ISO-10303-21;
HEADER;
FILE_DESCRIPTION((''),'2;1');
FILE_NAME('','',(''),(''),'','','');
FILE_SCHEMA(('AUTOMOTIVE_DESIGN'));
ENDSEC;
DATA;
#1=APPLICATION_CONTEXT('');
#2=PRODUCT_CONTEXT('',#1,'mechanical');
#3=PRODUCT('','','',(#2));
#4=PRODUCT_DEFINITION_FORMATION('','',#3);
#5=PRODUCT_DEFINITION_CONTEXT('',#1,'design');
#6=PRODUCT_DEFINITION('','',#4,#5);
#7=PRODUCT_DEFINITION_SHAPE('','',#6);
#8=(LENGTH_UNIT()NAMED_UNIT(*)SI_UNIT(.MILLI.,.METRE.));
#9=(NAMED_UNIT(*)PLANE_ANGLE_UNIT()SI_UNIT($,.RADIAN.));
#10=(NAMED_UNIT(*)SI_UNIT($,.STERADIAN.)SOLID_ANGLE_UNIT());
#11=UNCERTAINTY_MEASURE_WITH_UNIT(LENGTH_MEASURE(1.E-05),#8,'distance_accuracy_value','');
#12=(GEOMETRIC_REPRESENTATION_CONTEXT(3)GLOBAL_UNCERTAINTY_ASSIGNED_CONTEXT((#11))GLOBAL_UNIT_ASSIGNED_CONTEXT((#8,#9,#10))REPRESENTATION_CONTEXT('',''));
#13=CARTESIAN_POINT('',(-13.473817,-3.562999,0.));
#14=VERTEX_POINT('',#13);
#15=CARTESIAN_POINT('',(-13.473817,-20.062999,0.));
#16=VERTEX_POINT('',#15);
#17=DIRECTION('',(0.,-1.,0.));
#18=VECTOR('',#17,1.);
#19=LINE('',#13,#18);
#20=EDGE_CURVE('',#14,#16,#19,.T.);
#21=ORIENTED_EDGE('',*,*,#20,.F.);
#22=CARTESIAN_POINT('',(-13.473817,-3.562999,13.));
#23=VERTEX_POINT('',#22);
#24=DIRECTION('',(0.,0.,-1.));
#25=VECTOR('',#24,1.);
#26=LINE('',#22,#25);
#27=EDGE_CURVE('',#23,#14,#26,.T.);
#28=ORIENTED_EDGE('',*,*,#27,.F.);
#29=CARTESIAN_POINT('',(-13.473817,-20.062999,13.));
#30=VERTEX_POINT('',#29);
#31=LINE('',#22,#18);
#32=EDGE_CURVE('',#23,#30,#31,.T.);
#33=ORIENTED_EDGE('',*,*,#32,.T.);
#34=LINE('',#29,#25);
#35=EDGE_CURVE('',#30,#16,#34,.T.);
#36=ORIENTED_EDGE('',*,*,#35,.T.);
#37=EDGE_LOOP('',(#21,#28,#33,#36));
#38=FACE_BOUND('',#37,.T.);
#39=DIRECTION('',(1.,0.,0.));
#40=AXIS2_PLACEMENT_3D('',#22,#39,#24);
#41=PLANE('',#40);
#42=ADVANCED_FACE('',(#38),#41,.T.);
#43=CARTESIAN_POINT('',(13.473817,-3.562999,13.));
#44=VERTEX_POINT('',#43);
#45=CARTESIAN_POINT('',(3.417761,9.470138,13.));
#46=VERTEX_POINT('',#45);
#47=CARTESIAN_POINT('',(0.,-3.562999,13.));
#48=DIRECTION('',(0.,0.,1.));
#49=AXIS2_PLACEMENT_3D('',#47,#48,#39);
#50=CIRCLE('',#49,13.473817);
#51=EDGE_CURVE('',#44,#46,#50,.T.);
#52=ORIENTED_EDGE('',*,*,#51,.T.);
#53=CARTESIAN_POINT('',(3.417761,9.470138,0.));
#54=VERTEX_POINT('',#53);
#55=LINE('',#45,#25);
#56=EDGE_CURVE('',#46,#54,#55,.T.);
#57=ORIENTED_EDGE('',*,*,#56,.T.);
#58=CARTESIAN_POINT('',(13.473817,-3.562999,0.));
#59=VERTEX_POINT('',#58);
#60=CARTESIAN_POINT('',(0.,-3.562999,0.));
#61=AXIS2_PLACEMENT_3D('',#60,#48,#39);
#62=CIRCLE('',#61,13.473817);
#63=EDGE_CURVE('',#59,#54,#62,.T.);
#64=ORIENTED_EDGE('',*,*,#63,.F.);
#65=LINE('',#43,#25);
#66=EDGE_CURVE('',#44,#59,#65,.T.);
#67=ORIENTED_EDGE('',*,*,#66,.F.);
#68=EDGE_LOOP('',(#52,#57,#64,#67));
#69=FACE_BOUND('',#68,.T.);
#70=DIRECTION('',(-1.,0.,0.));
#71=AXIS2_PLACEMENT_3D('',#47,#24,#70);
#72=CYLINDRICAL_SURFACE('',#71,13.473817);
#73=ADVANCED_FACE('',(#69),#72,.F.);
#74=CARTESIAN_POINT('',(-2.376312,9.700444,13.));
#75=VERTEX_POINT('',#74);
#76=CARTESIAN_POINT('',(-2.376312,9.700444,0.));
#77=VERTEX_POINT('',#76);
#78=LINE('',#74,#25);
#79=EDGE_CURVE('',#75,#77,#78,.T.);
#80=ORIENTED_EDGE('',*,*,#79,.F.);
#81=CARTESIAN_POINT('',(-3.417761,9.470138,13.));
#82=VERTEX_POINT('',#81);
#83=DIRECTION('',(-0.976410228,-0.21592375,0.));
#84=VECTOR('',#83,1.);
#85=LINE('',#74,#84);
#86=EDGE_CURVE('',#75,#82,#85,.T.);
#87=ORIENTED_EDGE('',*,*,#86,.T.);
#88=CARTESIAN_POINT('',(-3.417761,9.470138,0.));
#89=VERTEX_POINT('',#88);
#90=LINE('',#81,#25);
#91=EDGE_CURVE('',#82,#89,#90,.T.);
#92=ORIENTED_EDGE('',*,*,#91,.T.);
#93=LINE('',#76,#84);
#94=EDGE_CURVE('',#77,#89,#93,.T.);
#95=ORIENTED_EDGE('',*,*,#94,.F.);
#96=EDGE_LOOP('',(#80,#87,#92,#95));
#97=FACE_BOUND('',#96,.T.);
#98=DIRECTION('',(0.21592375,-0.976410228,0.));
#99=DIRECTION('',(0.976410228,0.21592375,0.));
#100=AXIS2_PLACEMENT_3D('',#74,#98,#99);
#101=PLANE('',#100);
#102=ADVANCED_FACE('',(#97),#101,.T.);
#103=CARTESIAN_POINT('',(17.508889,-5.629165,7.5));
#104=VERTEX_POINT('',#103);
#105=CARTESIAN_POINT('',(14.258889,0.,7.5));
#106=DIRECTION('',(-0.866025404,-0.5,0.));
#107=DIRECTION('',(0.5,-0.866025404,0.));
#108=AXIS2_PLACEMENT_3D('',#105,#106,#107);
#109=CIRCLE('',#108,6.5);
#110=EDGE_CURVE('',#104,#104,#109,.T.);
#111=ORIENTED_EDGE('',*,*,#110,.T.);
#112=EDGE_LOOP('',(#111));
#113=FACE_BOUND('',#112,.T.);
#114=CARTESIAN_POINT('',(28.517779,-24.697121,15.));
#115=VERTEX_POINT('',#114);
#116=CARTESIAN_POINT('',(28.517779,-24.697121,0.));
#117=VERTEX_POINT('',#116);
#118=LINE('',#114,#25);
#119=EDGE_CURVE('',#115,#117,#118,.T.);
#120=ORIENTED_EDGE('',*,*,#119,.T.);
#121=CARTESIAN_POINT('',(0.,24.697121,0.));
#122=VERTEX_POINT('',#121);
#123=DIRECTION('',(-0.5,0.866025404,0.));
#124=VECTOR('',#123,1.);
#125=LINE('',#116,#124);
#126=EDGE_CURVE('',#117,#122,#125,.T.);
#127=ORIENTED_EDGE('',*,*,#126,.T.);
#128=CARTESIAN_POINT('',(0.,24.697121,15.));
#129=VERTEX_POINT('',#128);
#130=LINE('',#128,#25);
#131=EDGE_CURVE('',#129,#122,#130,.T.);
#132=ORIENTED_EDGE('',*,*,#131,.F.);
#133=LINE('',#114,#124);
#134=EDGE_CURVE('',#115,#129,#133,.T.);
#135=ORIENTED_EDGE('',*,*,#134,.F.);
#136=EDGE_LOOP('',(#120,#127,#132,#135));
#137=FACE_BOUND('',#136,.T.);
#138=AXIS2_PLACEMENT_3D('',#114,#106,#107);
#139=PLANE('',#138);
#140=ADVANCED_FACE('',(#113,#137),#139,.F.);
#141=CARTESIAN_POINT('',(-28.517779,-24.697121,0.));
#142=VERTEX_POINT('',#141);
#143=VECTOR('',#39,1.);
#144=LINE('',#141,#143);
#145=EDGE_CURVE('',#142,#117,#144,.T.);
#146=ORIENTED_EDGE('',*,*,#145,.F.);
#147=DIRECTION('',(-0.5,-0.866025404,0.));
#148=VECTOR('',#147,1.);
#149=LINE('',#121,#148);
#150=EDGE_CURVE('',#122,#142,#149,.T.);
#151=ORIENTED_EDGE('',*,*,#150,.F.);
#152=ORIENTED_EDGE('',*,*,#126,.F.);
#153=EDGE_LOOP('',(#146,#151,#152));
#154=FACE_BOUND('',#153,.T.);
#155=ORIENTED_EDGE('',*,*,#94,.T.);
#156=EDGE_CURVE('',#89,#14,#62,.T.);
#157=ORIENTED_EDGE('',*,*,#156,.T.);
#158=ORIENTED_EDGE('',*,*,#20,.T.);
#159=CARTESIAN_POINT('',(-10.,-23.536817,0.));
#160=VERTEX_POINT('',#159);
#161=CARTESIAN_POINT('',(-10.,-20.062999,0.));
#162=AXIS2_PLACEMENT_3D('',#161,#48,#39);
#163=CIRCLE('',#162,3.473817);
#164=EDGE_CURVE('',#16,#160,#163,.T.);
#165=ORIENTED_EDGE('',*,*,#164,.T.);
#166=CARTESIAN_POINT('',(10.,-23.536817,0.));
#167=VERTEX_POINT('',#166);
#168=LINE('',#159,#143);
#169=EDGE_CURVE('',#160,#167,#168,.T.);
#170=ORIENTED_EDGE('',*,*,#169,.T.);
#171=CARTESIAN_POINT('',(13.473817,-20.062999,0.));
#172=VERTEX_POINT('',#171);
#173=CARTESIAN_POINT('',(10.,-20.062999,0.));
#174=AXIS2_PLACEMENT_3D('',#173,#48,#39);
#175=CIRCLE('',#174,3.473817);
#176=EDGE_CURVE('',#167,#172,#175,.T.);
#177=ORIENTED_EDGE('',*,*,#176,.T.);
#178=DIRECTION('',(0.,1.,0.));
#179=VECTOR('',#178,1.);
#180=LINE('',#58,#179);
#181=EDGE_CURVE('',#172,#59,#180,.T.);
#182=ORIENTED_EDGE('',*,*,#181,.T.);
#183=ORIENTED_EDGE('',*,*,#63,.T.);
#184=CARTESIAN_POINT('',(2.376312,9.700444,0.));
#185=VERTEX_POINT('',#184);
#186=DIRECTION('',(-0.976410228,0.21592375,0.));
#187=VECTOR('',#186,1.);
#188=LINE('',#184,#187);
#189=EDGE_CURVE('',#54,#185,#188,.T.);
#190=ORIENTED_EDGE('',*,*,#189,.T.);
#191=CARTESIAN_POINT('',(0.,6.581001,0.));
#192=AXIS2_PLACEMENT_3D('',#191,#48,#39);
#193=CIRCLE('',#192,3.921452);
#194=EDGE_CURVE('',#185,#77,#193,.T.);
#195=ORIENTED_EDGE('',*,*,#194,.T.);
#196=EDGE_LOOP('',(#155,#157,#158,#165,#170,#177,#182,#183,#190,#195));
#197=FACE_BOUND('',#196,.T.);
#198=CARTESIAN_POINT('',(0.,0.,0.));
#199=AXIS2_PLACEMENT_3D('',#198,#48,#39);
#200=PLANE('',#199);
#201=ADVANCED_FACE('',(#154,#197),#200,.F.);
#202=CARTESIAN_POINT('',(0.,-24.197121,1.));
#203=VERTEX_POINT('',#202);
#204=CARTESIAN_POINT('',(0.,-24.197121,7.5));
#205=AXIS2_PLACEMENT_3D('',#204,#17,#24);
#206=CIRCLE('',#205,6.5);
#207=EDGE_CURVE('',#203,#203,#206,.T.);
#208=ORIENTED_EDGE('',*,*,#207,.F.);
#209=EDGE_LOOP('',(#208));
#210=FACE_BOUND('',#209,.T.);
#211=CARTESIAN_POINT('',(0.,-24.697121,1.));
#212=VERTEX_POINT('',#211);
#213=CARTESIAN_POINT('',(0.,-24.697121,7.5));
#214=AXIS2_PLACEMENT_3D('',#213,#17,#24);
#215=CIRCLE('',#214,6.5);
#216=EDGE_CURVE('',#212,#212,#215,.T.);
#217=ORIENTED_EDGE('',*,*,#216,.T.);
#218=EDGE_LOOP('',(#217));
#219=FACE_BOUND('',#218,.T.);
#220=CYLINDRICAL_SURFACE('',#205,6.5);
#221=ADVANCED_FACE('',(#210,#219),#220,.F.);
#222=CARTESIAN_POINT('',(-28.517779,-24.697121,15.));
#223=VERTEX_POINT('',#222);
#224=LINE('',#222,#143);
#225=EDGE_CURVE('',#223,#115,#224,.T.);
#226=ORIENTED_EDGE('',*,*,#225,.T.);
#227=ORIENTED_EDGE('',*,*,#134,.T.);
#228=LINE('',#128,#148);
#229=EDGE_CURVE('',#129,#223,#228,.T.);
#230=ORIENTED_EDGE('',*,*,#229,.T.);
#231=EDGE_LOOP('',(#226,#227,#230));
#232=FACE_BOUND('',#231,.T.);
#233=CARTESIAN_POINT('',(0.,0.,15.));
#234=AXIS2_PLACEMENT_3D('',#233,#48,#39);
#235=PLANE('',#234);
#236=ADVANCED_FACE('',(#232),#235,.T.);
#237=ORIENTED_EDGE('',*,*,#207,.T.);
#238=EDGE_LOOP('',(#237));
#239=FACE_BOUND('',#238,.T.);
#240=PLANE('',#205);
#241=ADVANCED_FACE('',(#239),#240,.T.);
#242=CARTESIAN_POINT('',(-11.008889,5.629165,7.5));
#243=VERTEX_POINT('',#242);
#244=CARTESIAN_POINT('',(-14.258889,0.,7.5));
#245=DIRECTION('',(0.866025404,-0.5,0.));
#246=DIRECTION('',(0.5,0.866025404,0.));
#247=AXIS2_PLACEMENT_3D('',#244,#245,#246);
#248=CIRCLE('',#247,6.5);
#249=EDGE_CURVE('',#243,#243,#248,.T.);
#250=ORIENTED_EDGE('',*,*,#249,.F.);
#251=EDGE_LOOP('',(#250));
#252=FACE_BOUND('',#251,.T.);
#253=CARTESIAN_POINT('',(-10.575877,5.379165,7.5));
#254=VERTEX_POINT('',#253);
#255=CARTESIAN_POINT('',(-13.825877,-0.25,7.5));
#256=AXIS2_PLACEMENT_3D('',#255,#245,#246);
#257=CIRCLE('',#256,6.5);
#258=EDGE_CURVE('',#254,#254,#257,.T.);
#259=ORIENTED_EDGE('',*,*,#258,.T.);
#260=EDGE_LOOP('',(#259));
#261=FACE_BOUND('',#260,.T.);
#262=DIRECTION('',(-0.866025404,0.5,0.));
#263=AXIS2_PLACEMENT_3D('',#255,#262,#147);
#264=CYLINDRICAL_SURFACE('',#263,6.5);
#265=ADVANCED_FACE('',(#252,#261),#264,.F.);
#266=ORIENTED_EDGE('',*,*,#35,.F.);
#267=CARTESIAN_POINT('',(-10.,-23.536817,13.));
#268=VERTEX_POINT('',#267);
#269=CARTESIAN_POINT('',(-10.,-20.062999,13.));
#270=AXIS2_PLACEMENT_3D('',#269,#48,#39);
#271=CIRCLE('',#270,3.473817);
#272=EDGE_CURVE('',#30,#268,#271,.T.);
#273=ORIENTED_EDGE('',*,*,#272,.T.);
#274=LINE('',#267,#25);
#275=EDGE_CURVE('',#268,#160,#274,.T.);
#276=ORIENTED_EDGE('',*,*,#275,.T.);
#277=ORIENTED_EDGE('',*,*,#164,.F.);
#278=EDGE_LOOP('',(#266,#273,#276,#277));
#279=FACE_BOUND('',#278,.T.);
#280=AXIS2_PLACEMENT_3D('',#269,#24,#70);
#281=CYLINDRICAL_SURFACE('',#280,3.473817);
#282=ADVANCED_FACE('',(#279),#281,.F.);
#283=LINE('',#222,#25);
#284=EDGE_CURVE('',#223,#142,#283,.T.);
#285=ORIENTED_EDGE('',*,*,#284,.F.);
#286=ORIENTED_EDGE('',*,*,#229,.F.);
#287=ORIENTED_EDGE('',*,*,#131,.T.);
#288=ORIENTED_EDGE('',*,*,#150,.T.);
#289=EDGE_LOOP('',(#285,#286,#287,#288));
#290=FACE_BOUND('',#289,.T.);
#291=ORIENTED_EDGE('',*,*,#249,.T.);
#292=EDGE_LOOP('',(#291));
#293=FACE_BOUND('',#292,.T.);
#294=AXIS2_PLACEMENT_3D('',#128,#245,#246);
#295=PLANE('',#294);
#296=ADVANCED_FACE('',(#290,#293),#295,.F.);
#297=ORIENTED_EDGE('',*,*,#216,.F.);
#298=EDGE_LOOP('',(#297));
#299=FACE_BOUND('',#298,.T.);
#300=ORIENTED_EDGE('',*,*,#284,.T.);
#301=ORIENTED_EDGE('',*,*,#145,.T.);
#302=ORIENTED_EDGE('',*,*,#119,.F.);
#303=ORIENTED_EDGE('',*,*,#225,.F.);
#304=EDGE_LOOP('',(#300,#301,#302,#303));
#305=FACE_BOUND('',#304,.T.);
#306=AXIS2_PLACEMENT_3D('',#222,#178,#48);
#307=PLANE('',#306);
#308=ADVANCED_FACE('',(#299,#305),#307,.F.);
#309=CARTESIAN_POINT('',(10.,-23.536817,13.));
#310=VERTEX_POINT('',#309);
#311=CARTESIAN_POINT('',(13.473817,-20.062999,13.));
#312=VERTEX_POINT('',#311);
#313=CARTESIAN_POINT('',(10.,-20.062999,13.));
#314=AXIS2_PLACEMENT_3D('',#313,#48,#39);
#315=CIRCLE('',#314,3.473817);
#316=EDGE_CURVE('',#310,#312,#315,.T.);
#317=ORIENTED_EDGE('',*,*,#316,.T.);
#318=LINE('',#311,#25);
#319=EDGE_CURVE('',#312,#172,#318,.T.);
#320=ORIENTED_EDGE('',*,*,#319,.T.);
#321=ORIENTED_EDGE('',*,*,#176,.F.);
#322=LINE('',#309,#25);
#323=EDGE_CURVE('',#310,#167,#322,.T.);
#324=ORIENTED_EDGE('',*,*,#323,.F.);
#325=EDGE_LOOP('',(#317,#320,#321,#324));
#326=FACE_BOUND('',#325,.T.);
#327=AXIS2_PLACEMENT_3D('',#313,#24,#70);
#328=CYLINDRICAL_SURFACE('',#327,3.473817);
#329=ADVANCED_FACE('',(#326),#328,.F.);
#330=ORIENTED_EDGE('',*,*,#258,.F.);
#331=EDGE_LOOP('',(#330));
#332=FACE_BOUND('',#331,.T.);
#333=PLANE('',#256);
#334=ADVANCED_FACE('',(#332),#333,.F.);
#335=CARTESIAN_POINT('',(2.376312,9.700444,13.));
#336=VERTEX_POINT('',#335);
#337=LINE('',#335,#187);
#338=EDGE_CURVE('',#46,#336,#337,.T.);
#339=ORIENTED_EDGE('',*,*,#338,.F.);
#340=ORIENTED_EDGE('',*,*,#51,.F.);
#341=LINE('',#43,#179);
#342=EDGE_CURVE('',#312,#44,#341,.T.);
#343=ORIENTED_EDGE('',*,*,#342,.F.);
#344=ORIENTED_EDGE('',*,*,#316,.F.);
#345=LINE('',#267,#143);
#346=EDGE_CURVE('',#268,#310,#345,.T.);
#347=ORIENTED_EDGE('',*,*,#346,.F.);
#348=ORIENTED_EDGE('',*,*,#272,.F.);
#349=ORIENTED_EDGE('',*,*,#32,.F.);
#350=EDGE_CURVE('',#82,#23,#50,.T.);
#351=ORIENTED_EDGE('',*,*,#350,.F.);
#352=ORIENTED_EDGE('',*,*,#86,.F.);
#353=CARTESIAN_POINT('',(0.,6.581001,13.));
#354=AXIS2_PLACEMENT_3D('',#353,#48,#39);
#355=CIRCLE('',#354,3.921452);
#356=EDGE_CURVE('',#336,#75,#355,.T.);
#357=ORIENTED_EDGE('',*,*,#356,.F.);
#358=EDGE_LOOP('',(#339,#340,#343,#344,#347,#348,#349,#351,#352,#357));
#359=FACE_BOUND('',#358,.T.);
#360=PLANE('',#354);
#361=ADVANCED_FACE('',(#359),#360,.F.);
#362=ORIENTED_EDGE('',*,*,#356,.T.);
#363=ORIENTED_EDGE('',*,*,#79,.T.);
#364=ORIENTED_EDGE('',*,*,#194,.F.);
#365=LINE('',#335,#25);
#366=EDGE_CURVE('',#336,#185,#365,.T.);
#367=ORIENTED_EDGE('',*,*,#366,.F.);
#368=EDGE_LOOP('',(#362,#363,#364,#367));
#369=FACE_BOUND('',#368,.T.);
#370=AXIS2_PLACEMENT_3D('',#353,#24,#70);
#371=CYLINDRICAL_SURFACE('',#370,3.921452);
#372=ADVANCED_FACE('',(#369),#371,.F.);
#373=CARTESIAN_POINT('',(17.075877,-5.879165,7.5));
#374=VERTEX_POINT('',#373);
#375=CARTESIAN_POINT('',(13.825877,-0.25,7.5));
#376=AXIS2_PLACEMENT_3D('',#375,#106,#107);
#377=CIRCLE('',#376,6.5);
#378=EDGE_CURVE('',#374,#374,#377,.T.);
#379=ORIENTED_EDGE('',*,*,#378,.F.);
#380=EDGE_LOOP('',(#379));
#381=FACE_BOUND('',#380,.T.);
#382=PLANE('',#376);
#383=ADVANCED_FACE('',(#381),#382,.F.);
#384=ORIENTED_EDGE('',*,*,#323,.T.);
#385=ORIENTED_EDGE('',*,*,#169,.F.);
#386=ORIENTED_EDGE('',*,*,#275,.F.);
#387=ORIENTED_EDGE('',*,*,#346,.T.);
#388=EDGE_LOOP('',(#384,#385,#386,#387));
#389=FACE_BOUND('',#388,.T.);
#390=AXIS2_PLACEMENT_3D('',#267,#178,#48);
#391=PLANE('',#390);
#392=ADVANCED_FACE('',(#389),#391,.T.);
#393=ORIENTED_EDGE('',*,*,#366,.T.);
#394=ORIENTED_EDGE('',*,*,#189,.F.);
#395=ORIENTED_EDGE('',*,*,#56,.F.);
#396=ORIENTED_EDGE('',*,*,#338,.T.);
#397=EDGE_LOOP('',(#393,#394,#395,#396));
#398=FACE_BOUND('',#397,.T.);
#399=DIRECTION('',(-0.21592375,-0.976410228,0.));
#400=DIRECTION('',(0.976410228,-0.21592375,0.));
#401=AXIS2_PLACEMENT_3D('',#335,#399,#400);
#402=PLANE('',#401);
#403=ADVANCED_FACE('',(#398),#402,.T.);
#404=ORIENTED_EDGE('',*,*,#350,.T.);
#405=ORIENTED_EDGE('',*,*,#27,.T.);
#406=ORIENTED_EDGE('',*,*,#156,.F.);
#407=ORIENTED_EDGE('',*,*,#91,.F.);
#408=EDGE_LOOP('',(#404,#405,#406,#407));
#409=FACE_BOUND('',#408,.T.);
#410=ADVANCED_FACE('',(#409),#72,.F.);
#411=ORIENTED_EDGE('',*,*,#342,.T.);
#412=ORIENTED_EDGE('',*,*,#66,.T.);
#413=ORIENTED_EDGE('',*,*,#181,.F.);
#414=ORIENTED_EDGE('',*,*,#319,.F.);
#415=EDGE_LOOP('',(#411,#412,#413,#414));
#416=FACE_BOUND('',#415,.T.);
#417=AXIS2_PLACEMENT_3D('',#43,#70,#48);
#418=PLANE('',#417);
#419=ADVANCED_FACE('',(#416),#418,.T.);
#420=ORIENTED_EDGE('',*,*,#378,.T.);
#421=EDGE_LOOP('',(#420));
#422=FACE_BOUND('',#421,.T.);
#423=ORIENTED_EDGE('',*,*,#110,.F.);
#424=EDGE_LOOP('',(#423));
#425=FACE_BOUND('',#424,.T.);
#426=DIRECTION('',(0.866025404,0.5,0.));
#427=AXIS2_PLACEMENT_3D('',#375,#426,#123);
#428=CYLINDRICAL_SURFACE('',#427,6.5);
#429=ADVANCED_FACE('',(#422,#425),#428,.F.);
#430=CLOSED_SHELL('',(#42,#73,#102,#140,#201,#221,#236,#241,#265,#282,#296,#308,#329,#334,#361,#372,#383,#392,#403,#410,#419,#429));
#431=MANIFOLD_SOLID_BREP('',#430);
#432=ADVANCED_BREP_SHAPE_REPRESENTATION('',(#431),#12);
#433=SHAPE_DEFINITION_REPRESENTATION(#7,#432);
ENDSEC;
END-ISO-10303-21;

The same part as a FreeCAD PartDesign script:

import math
import FreeCAD as App
import Part
import Sketcher
from FreeCAD import Vector
Q = App.Units.Quantity


def add_polygon(sketch, points):
    """Adds a closed chain of lines whose ends are joined by coincident constraints."""
    first, n = sketch.GeometryCount, len(points)
    for a, b in zip(points, points[1:] + points[:1]):
        sketch.addGeometry(Part.LineSegment(App.Vector(*a, 0), App.Vector(*b, 0)), False)
    for i in range(n):
        sketch.addConstraint(Sketcher.Constraint("Coincident", first + i, 2, first + (i + 1) % n, 1))

doc = App.newDocument("Part")
body = doc.addObject("PartDesign::Body", "Body")

# Sketch on XY plane
sketch1 = body.newObject("Sketcher::SketchObject", "Sketch")
sketch1.AttachmentSupport = (doc.getObject("XY_Plane"), [""])
sketch1.MapMode = "FlatFace"
add_polygon(sketch1, [(0, 24.697121), (-28.517779, -24.697121), (28.517779, -24.697121)])  # lines 0-2
sketch1.addConstraint([
    Sketcher.Constraint("Horizontal", 1),
    Sketcher.Constraint("PointOnObject", 2, 2, -2),
    Sketcher.Constraint("Equal", 0, 2),
    Sketcher.Constraint("Angle", 0, Q("-120 deg")),
    Sketcher.Constraint("DistanceX", 1, 1, 1, 2, 57.035558),
    Sketcher.Constraint("DistanceY", 0, 2, -1, 1, 24.697121),
])
pad1 = body.newObject("PartDesign::Pad", "Pad")
pad1.Profile = sketch1
pad1.Length = 15

# Sketch on XY plane
sketch2 = body.newObject("Sketcher::SketchObject", "Sketch001")
sketch2.AttachmentSupport = (doc.getObject("XY_Plane"), [""])
sketch2.MapMode = "FlatFace"
sketch2.addGeometry([
    Part.LineSegment(Vector(-13.473817, -3.562999, 0), Vector(-13.473817, -20.062999, 0)),  # 0
    Part.ArcOfCircle(Part.Circle(Vector(-10, -20.062999, 0), Vector(0, 0, 1), 3.473817), math.radians(-180), math.radians(-90)),  # 1
    Part.LineSegment(Vector(-10, -23.536817, 0), Vector(10, -23.536817, 0)),  # 2
    Part.ArcOfCircle(Part.Circle(Vector(10, -20.062999, 0), Vector(0, 0, 1), 3.473817), math.radians(-90), math.radians(0)),  # 3
    Part.LineSegment(Vector(13.473817, -20.062999, 0), Vector(13.473817, -3.562999, 0)),  # 4
    Part.ArcOfCircle(Part.Circle(Vector(0, -3.562999, 0), Vector(0, 0, 1), 13.473817), math.radians(0), math.radians(75.305833)),  # 5
    Part.LineSegment(Vector(3.417761, 9.470138, 0), Vector(2.376312, 9.700444, 0)),  # 6
    Part.ArcOfCircle(Part.Circle(Vector(0, 6.581001, 0), Vector(0, 0, 1), 3.921452), math.radians(52.700775), math.radians(127.299225)),  # 7
    Part.LineSegment(Vector(-2.376312, 9.700444, 0), Vector(-3.417761, 9.470138, 0)),  # 8
    Part.ArcOfCircle(Part.Circle(Vector(0, -3.562999, 0), Vector(0, 0, 1), 13.473817), math.radians(104.694167), math.radians(180)),  # 9
], False)
sketch2.addConstraint([
    Sketcher.Constraint("Tangent", 0, 2, 1, 1),
    Sketcher.Constraint("Tangent", 1, 2, 2, 1),
    Sketcher.Constraint("Tangent", 2, 2, 3, 1),
    Sketcher.Constraint("Tangent", 3, 2, 4, 1),
    Sketcher.Constraint("Tangent", 4, 2, 5, 1),
    Sketcher.Constraint("Coincident", 5, 2, 6, 1),
    Sketcher.Constraint("Coincident", 6, 2, 7, 1),
    Sketcher.Constraint("Coincident", 7, 2, 8, 1),
    Sketcher.Constraint("Coincident", 8, 2, 9, 1),
    Sketcher.Constraint("Tangent", 9, 2, 0, 1),
    Sketcher.Constraint("Vertical", 0),
    Sketcher.Constraint("Horizontal", 2),
    Sketcher.Constraint("Vertical", 4),
    Sketcher.Constraint("Coincident", 9, 3, 5, 3),
    Sketcher.Constraint("Equal", 1, 3),
    Sketcher.Constraint("Equal", 5, 9),
    Sketcher.Constraint("Symmetric", 6, 2, 7, 2, -2),
    Sketcher.Constraint("Symmetric", 5, 2, 8, 2, -2),
    Sketcher.Constraint("DistanceX", 2, 1, 2, 2, 20.0),
    Sketcher.Constraint("DistanceY", 0, 2, 0, 1, 16.5),
    Sketcher.Constraint("DistanceY", 1, 3, -1, 1, 20.062999),
    Sketcher.Constraint("DistanceY", -1, 1, 7, 3, 6.581001),
    Sketcher.Constraint("Radius", 1, 3.473817),
    Sketcher.Constraint("Radius", 7, 3.921452),
    Sketcher.Constraint("Distance", 6, 1.06661),
    Sketcher.Constraint("DistanceX", -1, 1, 5, 2, 3.417761),
])
pocket1 = body.newObject("PartDesign::Pocket", "Pocket")
pocket1.Profile = sketch2
pocket1.Length = 13
pocket1.Reversed = True

# Sketch on XZ plane
sketch3 = body.newObject("Sketcher::SketchObject", "Sketch002")
sketch3.AttachmentSupport = (doc.getObject("XZ_Plane"), [""])
sketch3.MapMode = "FlatFace"
sketch3.AttachmentOffset = App.Placement(Vector(0, 0, 24.697121), App.Rotation())
sketch3.addGeometry(Part.Circle(Vector(0, 7.5, 0), Vector(0, 0, 1), 6.5), False)
sketch3.addConstraint([
    Sketcher.Constraint("PointOnObject", 0, 3, -2),
    Sketcher.Constraint("Diameter", 0, 13.0),
    Sketcher.Constraint("DistanceY", -1, 1, 0, 3, 7.5),
])
pocket2 = body.newObject("PartDesign::Pocket", "Pocket001")
pocket2.Profile = sketch3
pocket2.Length = 0.5

# Sketch on an angled plane
sketch4 = body.newObject("Sketcher::SketchObject", "Sketch003")
sketch4.Placement = App.Placement(Vector(-14.258889, 0, 0), App.Rotation(Vector(0.5, 0.866025404, 0), Vector(0, 0, 1), Vector(0.866025404, -0.5, 0), "ZXY"))
sketch4.addGeometry(Part.Circle(Vector(0, 7.5, 0), Vector(0, 0, 1), 6.5), False)
sketch4.addConstraint([
    Sketcher.Constraint("PointOnObject", 0, 3, -2),
    Sketcher.Constraint("Diameter", 0, 13.0),
    Sketcher.Constraint("DistanceY", -1, 1, 0, 3, 7.5),
])
pocket3 = body.newObject("PartDesign::Pocket", "Pocket002")
pocket3.Profile = sketch4
pocket3.Length = 0.5
pocket3.Reversed = True

# Sketch on an angled plane
sketch5 = body.newObject("Sketcher::SketchObject", "Sketch004")
sketch5.Placement = App.Placement(Vector(14.258889, 0, 0), App.Rotation(Vector(0.5, -0.866025404, 0), Vector(0, 0, 1), Vector(-0.866025404, -0.5, 0), "ZXY"))
sketch5.addGeometry(Part.Circle(Vector(0, 7.5, 0), Vector(0, 0, 1), 6.5), False)
sketch5.addConstraint([
    Sketcher.Constraint("PointOnObject", 0, 3, -2),
    Sketcher.Constraint("Diameter", 0, 13.0),
    Sketcher.Constraint("DistanceY", -1, 1, 0, 3, 7.5),
])
pocket4 = body.newObject("PartDesign::Pocket", "Pocket003")
pocket4.Profile = sketch5
pocket4.Length = 0.5
pocket4.Reversed = True

doc.recompute()
